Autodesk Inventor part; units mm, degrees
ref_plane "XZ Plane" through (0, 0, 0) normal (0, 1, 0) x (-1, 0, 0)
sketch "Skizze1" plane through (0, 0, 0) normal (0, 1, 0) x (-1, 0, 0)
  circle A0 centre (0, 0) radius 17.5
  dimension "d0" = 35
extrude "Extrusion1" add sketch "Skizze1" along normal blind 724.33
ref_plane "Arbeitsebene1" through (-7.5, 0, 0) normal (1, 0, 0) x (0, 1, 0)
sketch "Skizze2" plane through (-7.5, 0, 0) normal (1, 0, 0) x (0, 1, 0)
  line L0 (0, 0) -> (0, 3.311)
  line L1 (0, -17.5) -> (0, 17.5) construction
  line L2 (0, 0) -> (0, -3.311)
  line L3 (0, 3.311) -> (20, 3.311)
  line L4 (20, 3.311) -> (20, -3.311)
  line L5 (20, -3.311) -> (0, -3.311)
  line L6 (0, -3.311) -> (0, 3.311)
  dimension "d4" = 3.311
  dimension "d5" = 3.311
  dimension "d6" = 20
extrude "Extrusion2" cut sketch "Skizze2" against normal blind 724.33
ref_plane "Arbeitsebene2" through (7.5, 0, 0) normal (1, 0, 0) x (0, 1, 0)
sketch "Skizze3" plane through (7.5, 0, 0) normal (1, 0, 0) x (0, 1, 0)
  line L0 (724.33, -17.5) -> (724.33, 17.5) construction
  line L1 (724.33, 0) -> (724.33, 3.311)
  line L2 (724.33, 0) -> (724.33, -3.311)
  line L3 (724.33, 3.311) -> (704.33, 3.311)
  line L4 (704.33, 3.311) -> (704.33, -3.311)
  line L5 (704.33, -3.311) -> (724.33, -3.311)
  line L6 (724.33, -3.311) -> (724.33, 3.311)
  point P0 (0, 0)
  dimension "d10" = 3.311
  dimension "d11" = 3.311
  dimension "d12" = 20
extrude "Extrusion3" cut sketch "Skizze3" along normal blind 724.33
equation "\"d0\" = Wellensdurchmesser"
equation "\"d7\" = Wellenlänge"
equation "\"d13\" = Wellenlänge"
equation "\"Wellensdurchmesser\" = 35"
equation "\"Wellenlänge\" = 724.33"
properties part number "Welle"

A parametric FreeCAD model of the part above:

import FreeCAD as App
import Part
import Sketcher
from FreeCAD import Vector

doc = App.newDocument("Part")
body = doc.addObject("PartDesign::Body", "Body")

# Sketch on XZ plane
sketch1 = doc.addObject("Sketcher::SketchObject", "Sketch")
body.addObject(sketch1)
sketch1.AttachmentSupport = (doc.XZ_Plane, [""])
sketch1.MapMode = "FlatFace"
sketch1.addGeometry(Part.Circle(Vector(0, 0, 0), Vector(0, 0, 1), 17.5), False)
sketch1.addConstraint([
    Sketcher.Constraint("Coincident", 0, 3, -1, 1),
    Sketcher.Constraint("Diameter", 0, 35.0),
])
pad1 = doc.addObject("PartDesign::Pad", "Pad")
body.addObject(pad1)
pad1.Profile = sketch1
pad1.Length = 724.33
pad1.Reversed = True

# Sketch on YZ plane
sketch2 = doc.addObject("Sketcher::SketchObject", "Sketch001")
body.addObject(sketch2)
sketch2.AttachmentSupport = (doc.YZ_Plane, [""])
sketch2.MapMode = "FlatFace"
sketch2.AttachmentOffset = App.Placement(Vector(0, 0, -7.5), App.Rotation())
sketch2.addGeometry([
    Part.LineSegment(Vector(0, 3.311, 0), Vector(0, -3.311, 0)),
    Part.LineSegment(Vector(0, -3.311, 0), Vector(20, -3.311, 0)),
    Part.LineSegment(Vector(20, -3.311, 0), Vector(20, 3.311, 0)),
    Part.LineSegment(Vector(20, 3.311, 0), Vector(0, 3.311, 0)),
], False)
sketch2.addConstraint([
    Sketcher.Constraint("Coincident", 0, 2, 1, 1),
    Sketcher.Constraint("Coincident", 1, 2, 2, 1),
    Sketcher.Constraint("Coincident", 2, 2, 3, 1),
    Sketcher.Constraint("Coincident", 3, 2, 0, 1),
    Sketcher.Constraint("Vertical", 0),
    Sketcher.Constraint("Horizontal", 1),
    Sketcher.Constraint("Vertical", 2),
    Sketcher.Constraint("Horizontal", 3),
    Sketcher.Constraint("Symmetric", 0, 2, 3, 2, -1, 1),
    Sketcher.Constraint("DistanceX", 1, 1, 1, 2, 20.0),
    Sketcher.Constraint("DistanceY", 0, 2, -1, 1, 3.311),
])
pocket1 = doc.addObject("PartDesign::Pocket", "Pocket")
body.addObject(pocket1)
pocket1.Profile = sketch2
pocket1.Length = 724.33

# Sketch on YZ plane
sketch3 = doc.addObject("Sketcher::SketchObject", "Sketch002")
body.addObject(sketch3)
sketch3.AttachmentSupport = (doc.YZ_Plane, [""])
sketch3.MapMode = "FlatFace"
sketch3.AttachmentOffset = App.Placement(Vector(0, 0, 7.5), App.Rotation())
sketch3.addGeometry([
    Part.LineSegment(Vector(724.33, -3.311, 0), Vector(724.33, 3.311, 0)),
    Part.LineSegment(Vector(724.33, 3.311, 0), Vector(704.33, 3.311, 0)),
    Part.LineSegment(Vector(704.33, 3.311, 0), Vector(704.33, -3.311, 0)),
    Part.LineSegment(Vector(704.33, -3.311, 0), Vector(724.33, -3.311, 0)),
], False)
sketch3.addConstraint([
    Sketcher.Constraint("Coincident", 0, 2, 1, 1),
    Sketcher.Constraint("Coincident", 1, 2, 2, 1),
    Sketcher.Constraint("Coincident", 2, 2, 3, 1),
    Sketcher.Constraint("Coincident", 3, 2, 0, 1),
    Sketcher.Constraint("Vertical", 0),
    Sketcher.Constraint("Horizontal", 1),
    Sketcher.Constraint("Vertical", 2),
    Sketcher.Constraint("Horizontal", 3),
    Sketcher.Constraint("DistanceX", 1, 2, 1, 1, 20.0),
    Sketcher.Constraint("DistanceY", -1, 1, 0, 2, 3.311),
    Sketcher.Constraint("DistanceY", 2, 2, -1, 1, 3.311),
    Sketcher.Constraint("DistanceX", -1, 1, 0, 2, 724.33),
])
pocket2 = doc.addObject("PartDesign::Pocket", "Pocket001")
body.addObject(pocket2)
pocket2.Profile = sketch3
pocket2.Length = 724.33
pocket2.Reversed = True

doc.recompute()
